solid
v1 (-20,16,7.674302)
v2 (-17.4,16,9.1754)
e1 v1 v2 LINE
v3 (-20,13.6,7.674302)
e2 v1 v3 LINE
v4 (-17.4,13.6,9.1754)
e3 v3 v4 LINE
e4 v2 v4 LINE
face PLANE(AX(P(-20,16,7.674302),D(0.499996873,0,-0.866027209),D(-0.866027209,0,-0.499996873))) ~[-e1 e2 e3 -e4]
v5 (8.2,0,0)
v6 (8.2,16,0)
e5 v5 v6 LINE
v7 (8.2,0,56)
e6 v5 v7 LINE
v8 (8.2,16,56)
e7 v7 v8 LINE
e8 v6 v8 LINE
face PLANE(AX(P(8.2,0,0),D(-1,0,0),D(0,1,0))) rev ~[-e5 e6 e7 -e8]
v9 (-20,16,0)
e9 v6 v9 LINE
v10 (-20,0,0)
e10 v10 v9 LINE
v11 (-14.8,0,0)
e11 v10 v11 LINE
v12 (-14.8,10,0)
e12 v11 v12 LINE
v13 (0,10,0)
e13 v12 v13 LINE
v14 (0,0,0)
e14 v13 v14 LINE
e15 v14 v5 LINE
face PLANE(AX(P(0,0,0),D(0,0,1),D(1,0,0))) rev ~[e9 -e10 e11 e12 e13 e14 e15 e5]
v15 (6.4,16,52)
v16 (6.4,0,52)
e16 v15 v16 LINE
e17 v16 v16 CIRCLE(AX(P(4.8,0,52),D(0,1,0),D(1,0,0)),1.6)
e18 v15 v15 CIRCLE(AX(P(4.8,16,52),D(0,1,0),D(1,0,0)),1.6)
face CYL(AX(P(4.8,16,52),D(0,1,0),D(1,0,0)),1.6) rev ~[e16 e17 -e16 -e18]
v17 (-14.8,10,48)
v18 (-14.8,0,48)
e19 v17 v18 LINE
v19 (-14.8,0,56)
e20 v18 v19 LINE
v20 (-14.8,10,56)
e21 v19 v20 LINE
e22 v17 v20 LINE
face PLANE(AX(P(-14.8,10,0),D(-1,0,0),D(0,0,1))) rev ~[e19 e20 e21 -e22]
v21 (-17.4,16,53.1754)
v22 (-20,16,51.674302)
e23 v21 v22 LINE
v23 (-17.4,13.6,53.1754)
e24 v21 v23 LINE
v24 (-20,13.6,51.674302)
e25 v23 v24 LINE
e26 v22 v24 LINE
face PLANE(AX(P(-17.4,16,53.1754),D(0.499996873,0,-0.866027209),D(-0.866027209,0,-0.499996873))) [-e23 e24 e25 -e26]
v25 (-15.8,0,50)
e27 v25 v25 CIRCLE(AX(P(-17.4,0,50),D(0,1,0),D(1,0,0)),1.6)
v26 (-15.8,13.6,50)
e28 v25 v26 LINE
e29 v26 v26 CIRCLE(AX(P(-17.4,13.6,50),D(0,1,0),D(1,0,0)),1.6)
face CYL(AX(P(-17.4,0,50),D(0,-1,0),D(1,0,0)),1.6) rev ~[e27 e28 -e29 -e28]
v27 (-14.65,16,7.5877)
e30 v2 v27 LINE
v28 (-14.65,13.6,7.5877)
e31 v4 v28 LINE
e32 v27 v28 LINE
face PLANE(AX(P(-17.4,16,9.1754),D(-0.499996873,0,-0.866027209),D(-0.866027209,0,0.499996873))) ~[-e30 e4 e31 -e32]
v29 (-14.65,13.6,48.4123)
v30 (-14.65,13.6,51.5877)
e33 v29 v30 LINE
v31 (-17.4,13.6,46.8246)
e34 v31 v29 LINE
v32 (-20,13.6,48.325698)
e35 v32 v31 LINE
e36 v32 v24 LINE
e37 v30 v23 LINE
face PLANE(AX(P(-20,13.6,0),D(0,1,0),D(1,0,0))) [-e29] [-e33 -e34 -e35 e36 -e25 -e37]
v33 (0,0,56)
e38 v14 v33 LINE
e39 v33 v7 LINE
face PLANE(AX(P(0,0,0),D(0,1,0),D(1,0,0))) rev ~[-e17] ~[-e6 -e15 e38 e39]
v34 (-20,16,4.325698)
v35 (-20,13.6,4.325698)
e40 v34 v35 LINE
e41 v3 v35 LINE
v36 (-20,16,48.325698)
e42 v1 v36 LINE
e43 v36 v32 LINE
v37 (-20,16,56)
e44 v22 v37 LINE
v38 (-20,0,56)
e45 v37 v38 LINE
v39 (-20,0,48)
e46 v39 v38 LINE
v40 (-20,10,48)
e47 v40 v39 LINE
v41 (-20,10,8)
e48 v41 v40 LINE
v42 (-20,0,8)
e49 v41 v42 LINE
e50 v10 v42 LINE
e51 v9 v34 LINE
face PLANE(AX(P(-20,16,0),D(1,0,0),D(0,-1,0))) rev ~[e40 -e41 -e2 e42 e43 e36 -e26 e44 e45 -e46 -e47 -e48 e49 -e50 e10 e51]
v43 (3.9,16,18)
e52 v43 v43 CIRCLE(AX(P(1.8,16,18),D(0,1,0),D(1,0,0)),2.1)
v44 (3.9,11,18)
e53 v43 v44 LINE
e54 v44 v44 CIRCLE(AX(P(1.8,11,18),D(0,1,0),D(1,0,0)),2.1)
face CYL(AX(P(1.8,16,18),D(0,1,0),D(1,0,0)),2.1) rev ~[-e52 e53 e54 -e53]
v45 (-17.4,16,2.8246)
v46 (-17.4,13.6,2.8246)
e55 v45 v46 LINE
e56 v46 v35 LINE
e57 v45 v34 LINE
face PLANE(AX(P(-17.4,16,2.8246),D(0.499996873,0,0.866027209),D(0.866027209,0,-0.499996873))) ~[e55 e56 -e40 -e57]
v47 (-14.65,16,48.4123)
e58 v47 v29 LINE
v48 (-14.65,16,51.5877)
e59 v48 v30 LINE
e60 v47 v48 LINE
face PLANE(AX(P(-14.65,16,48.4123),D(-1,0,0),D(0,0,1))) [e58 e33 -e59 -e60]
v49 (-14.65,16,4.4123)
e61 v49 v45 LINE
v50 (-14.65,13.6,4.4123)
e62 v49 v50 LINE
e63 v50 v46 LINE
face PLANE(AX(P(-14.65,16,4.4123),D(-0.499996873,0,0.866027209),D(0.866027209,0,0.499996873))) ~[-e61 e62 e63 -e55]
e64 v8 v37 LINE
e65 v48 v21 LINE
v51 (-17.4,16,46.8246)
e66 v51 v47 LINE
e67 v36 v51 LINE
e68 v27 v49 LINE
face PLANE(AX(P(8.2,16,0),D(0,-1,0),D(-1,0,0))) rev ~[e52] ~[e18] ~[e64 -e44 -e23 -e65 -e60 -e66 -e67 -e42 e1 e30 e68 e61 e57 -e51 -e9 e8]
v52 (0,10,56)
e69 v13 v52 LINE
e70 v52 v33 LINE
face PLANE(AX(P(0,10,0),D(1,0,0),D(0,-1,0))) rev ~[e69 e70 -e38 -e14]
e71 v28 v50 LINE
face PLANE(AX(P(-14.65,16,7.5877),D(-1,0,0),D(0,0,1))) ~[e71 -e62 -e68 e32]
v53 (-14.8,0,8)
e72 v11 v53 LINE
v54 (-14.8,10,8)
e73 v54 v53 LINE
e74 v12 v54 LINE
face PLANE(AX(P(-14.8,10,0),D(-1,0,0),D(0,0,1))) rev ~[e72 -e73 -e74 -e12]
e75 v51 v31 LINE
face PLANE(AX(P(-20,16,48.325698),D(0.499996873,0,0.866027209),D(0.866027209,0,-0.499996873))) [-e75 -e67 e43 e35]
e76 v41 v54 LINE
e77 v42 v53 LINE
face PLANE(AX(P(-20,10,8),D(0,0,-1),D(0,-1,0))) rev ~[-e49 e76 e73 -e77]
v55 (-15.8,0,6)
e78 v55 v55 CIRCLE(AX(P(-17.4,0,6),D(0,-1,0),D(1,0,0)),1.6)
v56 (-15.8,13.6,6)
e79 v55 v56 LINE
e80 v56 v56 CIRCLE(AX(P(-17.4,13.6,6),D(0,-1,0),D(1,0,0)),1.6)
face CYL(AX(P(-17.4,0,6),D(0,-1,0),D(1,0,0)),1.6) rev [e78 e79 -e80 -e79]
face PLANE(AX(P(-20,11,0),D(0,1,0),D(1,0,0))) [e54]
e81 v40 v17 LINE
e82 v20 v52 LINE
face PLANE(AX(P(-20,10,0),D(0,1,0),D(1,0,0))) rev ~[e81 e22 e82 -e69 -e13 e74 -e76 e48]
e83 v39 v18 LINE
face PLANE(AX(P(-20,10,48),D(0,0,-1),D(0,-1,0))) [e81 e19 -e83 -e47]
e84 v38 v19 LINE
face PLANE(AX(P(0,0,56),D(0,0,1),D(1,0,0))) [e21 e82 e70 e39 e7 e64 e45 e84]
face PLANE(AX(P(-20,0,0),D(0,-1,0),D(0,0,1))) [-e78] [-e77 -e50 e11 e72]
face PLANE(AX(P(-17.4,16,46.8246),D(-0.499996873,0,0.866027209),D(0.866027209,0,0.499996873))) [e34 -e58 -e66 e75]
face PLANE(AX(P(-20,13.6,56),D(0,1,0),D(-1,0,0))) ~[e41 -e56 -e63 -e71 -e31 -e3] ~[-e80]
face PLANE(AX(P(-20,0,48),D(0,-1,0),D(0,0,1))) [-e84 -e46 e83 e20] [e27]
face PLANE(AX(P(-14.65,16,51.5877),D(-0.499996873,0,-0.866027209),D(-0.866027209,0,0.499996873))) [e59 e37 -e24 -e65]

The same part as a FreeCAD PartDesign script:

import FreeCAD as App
import Part
import Sketcher
from FreeCAD import Vector
Q = App.Units.Quantity

doc = App.newDocument("Part")
params = doc.addObject("Spreadsheet::Sheet", "Params")
for row, (alias, value) in enumerate([
    ("sketch1_width", "20 mm"),
    ("sketch1_height", "6 mm"),
    ("sketch1_height2", "10 mm"),
    ("sketch1_width2", "8.2 mm"),
    ("pad1_length", "56 mm"),
    ("sketch2_height", "8 mm"),
    ("sketch2_width", "10 mm"),
    ("pad2_length", "5.2 mm"),
    ("sketch3_diameter", "3.2 mm"),
    ("pocket1_length", "20 mm"),
    ("sketch4_diameter", "3.2 mm"),
    ("pocket2_length", "2.4 mm"),
    ("sketch5_diameter", "3.2 mm"),
    ("pocket3_length", "56 mm"),
    ("sketch6_diameter", "4.2 mm"),
    ("pocket4_length", "5 mm"),
], start=1):
    params.set(f"A{row}", alias)
    params.set(f"B{row}", "=" + value)
    params.setAlias(f"B{row}", alias)

body = doc.addObject("PartDesign::Body", "Body")

# Sketch on XY plane
sketch1 = body.newObject("Sketcher::SketchObject", "Sketch")
sketch1.AttachmentSupport = (doc.getObject("XY_Plane"), [""])
sketch1.MapMode = "FlatFace"
sketch1.addGeometry(Part.LineSegment(Vector(0, 0, 0), Vector(8, 0, 0)), False)
sketch1.addGeometry(Part.LineSegment(Vector(8, 0, 0), Vector(8, 16, 0)), False)
sketch1.addGeometry(Part.LineSegment(Vector(8, 16, 0), Vector(-20, 16, 0)), False)
sketch1.addGeometry(Part.LineSegment(Vector(-20, 16, 0), Vector(-20, 10, 0)), False)
sketch1.addGeometry(Part.LineSegment(Vector(-20, 10, 0), Vector(0, 10, 0)), False)
sketch1.addGeometry(Part.LineSegment(Vector(0, 10, 0), Vector(0, 0, 0)), False)
sketch1.addConstraint(Sketcher.Constraint("Coincident", 0, 2, 1, 1))
sketch1.addConstraint(Sketcher.Constraint("Coincident", 1, 2, 2, 1))
sketch1.addConstraint(Sketcher.Constraint("Coincident", 2, 2, 3, 1))
sketch1.addConstraint(Sketcher.Constraint("Coincident", 3, 2, 4, 1))
sketch1.addConstraint(Sketcher.Constraint("Coincident", 4, 2, 5, 1))
sketch1.addConstraint(Sketcher.Constraint("Coincident", 5, 2, 0, 1))
sketch1.addConstraint(Sketcher.Constraint("Horizontal", 0))
sketch1.addConstraint(Sketcher.Constraint("Vertical", 1))
sketch1.addConstraint(Sketcher.Constraint("Horizontal", 2))
sketch1.addConstraint(Sketcher.Constraint("Vertical", 3))
sketch1.addConstraint(Sketcher.Constraint("Horizontal", 4))
sketch1.addConstraint(Sketcher.Constraint("Vertical", 5))
sketch1.addConstraint(Sketcher.Constraint("Coincident", 5, 2, -1, 1))
sketch1.addConstraint(Sketcher.Constraint("DistanceX", 4, 1, 4, 2, 20.0))
sketch1.addConstraint(Sketcher.Constraint("DistanceY", 3, 2, 3, 1, 6.0))
sketch1.addConstraint(Sketcher.Constraint("DistanceY", 5, 2, 5, 1, 10.0))
sketch1.addConstraint(Sketcher.Constraint("DistanceX", 0, 1, 0, 2, 8.2))
sketch1.setExpression("Constraints[13]", "Params.sketch1_width")
sketch1.setExpression("Constraints[14]", "Params.sketch1_height")
sketch1.setExpression("Constraints[15]", "Params.sketch1_height2")
sketch1.setExpression("Constraints[16]", "Params.sketch1_width2")
pad1 = body.newObject("PartDesign::Pad", "Pad")
pad1.Profile = sketch1
pad1.setExpression("Length", "Params.pad1_length")

# Sketch on YZ plane
sketch2 = body.newObject("Sketcher::SketchObject", "Sketch001")
sketch2.AttachmentSupport = (doc.getObject("YZ_Plane"), [""])
sketch2.MapMode = "FlatFace"
sketch2.AttachmentOffset = App.Placement(Vector(0, 0, -20), App.Rotation())
sketch2.addGeometry(Part.LineSegment(Vector(10, 8, 0), Vector(10, 0, 0)), False)
sketch2.addGeometry(Part.LineSegment(Vector(10, 0, 0), Vector(0, 0, 0)), False)
sketch2.addGeometry(Part.LineSegment(Vector(0, 0, 0), Vector(0, 8, 0)), False)
sketch2.addGeometry(Part.LineSegment(Vector(0, 8, 0), Vector(10, 8, 0)), False)
sketch2.addGeometry(Part.LineSegment(Vector(10, 56, 0), Vector(10, 48, 0)), False)
sketch2.addGeometry(Part.LineSegment(Vector(10, 48, 0), Vector(0, 48, 0)), False)
sketch2.addGeometry(Part.LineSegment(Vector(0, 48, 0), Vector(0, 56, 0)), False)
sketch2.addGeometry(Part.LineSegment(Vector(0, 56, 0), Vector(10, 56, 0)), False)
sketch2.addConstraint(Sketcher.Constraint("Coincident", 0, 2, 1, 1))
sketch2.addConstraint(Sketcher.Constraint("Coincident", 1, 2, 2, 1))
sketch2.addConstraint(Sketcher.Constraint("Coincident", 2, 2, 3, 1))
sketch2.addConstraint(Sketcher.Constraint("Coincident", 3, 2, 0, 1))
sketch2.addConstraint(Sketcher.Constraint("Coincident", 4, 2, 5, 1))
sketch2.addConstraint(Sketcher.Constraint("Coincident", 5, 2, 6, 1))
sketch2.addConstraint(Sketcher.Constraint("Coincident", 6, 2, 7, 1))
sketch2.addConstraint(Sketcher.Constraint("Coincident", 7, 2, 4, 1))
sketch2.addConstraint(Sketcher.Constraint("Vertical", 0))
sketch2.addConstraint(Sketcher.Constraint("Horizontal", 1))
sketch2.addConstraint(Sketcher.Constraint("Vertical", 2))
sketch2.addConstraint(Sketcher.Constraint("Horizontal", 3))
sketch2.addConstraint(Sketcher.Constraint("Vertical", 4))
sketch2.addConstraint(Sketcher.Constraint("Horizontal", 5))
sketch2.addConstraint(Sketcher.Constraint("Vertical", 6))
sketch2.addConstraint(Sketcher.Constraint("Horizontal", 7))
sketch2.addConstraint(Sketcher.Constraint("Coincident", 1, 2, -1, 1))
sketch2.addConstraint(Sketcher.Constraint("PointOnObject", 5, 2, -2))
sketch2.addConstraint(Sketcher.Constraint("Vertical", 3, 2, 4, 2))
sketch2.addConstraint(Sketcher.Constraint("Equal", 2, 4))
sketch2.addConstraint(Sketcher.Constraint("DistanceY", 0, 2, 0, 1, 8.0))
sketch2.addConstraint(Sketcher.Constraint("DistanceX", 1, 2, 1, 1, 10.0))
sketch2.addConstraint(Sketcher.Constraint("DistanceY", -1, 1, 4, 2, 48.0))
sketch2.setExpression("Constraints[20]", "Params.sketch2_height")
sketch2.setExpression("Constraints[21]", "Params.sketch2_width")
pad2 = body.newObject("PartDesign::Pad", "Pad001")
pad2.Profile = sketch2
pad2.setExpression("Length", "Params.pad2_length")

# Sketch on XZ plane
sketch3 = body.newObject("Sketcher::SketchObject", "Sketch002")
sketch3.AttachmentSupport = (doc.getObject("XZ_Plane"), [""])
sketch3.MapMode = "FlatFace"
sketch3.addGeometry(Part.Circle(Vector(-17.4, 50, 0), Vector(0, 0, 1), 1.6), False)
sketch3.addConstraint(Sketcher.Constraint("Diameter", 0, 3.2))
sketch3.addConstraint(Sketcher.Constraint("DistanceY", -1, 1, 0, 3, 50.0))
sketch3.addConstraint(Sketcher.Constraint("DistanceX", 0, 3, -1, 1, 17.4))
sketch3.setExpression("Constraints[0]", "Params.sketch3_diameter")
pocket1 = body.newObject("PartDesign::Pocket", "Pocket")
pocket1.Profile = sketch3
pocket1.setExpression("Length", "Params.pocket1_length")

# Sketch on XZ plane
sketch4 = body.newObject("Sketcher::SketchObject", "Sketch003")
sketch4.AttachmentSupport = (doc.getObject("XZ_Plane"), [""])
sketch4.MapMode = "FlatFace"
sketch4.AttachmentOffset = App.Placement(Vector(0, 0, -16), App.Rotation())
sketch4.addGeometry(Part.LineSegment(Vector(-14.7, 51.6, 0), Vector(-14.7, 48.4, 0)), False)
sketch4.addGeometry(Part.LineSegment(Vector(-14.7, 48.4, 0), Vector(-17.4, 46.8, 0)), False)
sketch4.addGeometry(Part.LineSegment(Vector(-17.4, 46.8, 0), Vector(-20, 48.3, 0)), False)
sketch4.addGeometry(Part.LineSegment(Vector(-20, 48.3, 0), Vector(-20, 51.7, 0)), False)
sketch4.addGeometry(Part.LineSegment(Vector(-20, 51.7, 0), Vector(-17.4, 53.2, 0)), False)
sketch4.addGeometry(Part.LineSegment(Vector(-17.4, 53.2, 0), Vector(-14.7, 51.6, 0)), False)
sketch4.addGeometry(Part.Circle(Vector(-17.4, 50, 0), Vector(0, 0, 1), 1.6), False)
sketch4.addConstraint(Sketcher.Constraint("Coincident", 0, 2, 1, 1))
sketch4.addConstraint(Sketcher.Constraint("Coincident", 1, 2, 2, 1))
sketch4.addConstraint(Sketcher.Constraint("Coincident", 2, 2, 3, 1))
sketch4.addConstraint(Sketcher.Constraint("Coincident", 3, 2, 4, 1))
sketch4.addConstraint(Sketcher.Constraint("Coincident", 4, 2, 5, 1))
sketch4.addConstraint(Sketcher.Constraint("Coincident", 5, 2, 0, 1))
sketch4.addConstraint(Sketcher.Constraint("Vertical", 0))
sketch4.addConstraint(Sketcher.Constraint("Vertical", 3))
sketch4.addConstraint(Sketcher.Constraint("Parallel", 1, 4))
sketch4.addConstraint(Sketcher.Constraint("Parallel", 2, 5))
sketch4.addConstraint(Sketcher.Constraint("Vertical", 6, 3, 1, 2))
sketch4.addConstraint(Sketcher.Constraint("Vertical", 1, 2, 4, 2))
sketch4.addConstraint(Sketcher.Constraint("Equal", 2, 4))
sketch4.addConstraint(Sketcher.Constraint("Diameter", 6, 3.2))
sketch4.addConstraint(Sketcher.Constraint("Angle", 1, Q("-150.0002 deg")))
sketch4.addConstraint(Sketcher.Constraint("DistanceY", -1, 1, 6, 3, 50.0))
sketch4.addConstraint(Sketcher.Constraint("DistanceX", 2, 2, -1, 1, 20.0))
sketch4.addConstraint(Sketcher.Constraint("DistanceX", 6, 3, -1, 1, 17.4))
sketch4.addConstraint(Sketcher.Constraint("DistanceX", 0, 2, -1, 1, 14.65))
sketch4.addConstraint(Sketcher.Constraint("DistanceY", 0, 2, 0, 1, 3.1754))
sketch4.addConstraint(Sketcher.Constraint("DistanceY", -1, 1, 0, 2, 48.4123))
sketch4.setExpression("Constraints[13]", "Params.sketch4_diameter")
pocket2 = body.newObject("PartDesign::Pocket", "Pocket001")
pocket2.Profile = sketch4
pocket2.setExpression("Length", "Params.pocket2_length")
pocket2.Reversed = True
doc.recompute()

datumplane = body.newObject("PartDesign::Plane", "DatumPlane")
datumplane.AttachmentSupport = (doc.getObject("XY_Plane"), [""])
datumplane.MapMode = "FlatFace"
datumplane.AttachmentOffset = App.Placement(Vector(0, 0, 28), App.Rotation())
mirrored = body.newObject("PartDesign::Mirrored", "Mirrored")
mirrored.Originals = [pocket1, pocket2]
mirrored.MirrorPlane = (datumplane, [""])
body.Tip = mirrored

# Sketch on XZ plane
sketch5 = body.newObject("Sketcher::SketchObject", "Sketch004")
sketch5.AttachmentSupport = (doc.getObject("XZ_Plane"), [""])
sketch5.MapMode = "FlatFace"
sketch5.AttachmentOffset = App.Placement(Vector(0, 0, -16), App.Rotation())
sketch5.addGeometry(Part.Circle(Vector(4.8, 52, 0), Vector(0, 0, 1), 1.6), False)
sketch5.addConstraint(Sketcher.Constraint("Diameter", 0, 3.2))
sketch5.addConstraint(Sketcher.Constraint("DistanceY", -1, 1, 0, 3, 52.0))
sketch5.addConstraint(Sketcher.Constraint("DistanceX", -1, 1, 0, 3, 4.8))
sketch5.setExpression("Constraints[0]", "Params.sketch5_diameter")
pocket3 = body.newObject("PartDesign::Pocket", "Pocket002")
pocket3.Profile = sketch5
pocket3.setExpression("Length", "Params.pocket3_length")
pocket3.Reversed = True

# Sketch on XZ plane
sketch6 = body.newObject("Sketcher::SketchObject", "Sketch005")
sketch6.AttachmentSupport = (doc.getObject("XZ_Plane"), [""])
sketch6.MapMode = "FlatFace"
sketch6.AttachmentOffset = App.Placement(Vector(0, 0, -16), App.Rotation())
sketch6.addGeometry(Part.Circle(Vector(1.8, 18, 0), Vector(0, 0, 1), 2.1), False)
sketch6.addConstraint(Sketcher.Constraint("Diameter", 0, 4.2))
sketch6.addConstraint(Sketcher.Constraint("DistanceY", -1, 1, 0, 3, 18.0))
sketch6.addConstraint(Sketcher.Constraint("DistanceX", -1, 1, 0, 3, 1.8))
sketch6.setExpression("Constraints[0]", "Params.sketch6_diameter")
pocket4 = body.newObject("PartDesign::Pocket", "Pocket003")
pocket4.Profile = sketch6
pocket4.setExpression("Length", "Params.pocket4_length")
pocket4.Reversed = True

doc.recompute()
